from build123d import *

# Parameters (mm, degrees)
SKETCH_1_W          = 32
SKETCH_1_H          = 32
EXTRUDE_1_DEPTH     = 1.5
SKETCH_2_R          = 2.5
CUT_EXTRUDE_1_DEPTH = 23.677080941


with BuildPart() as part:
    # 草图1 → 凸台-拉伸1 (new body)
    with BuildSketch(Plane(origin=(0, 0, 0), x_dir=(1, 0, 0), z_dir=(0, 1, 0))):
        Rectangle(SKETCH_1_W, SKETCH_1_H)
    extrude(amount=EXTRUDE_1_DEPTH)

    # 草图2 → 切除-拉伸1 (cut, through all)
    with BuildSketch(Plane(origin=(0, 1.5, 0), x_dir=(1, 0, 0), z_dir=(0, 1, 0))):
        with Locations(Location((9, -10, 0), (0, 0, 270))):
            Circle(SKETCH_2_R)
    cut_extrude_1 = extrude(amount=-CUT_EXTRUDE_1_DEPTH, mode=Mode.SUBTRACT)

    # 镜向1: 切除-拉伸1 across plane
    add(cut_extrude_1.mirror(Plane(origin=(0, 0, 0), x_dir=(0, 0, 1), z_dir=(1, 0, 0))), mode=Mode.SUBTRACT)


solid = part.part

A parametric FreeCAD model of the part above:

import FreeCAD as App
import Part
import Sketcher


def add_polygon(sketch, points):
    """Adds a closed chain of lines whose ends are joined by coincident constraints."""
    first, n = sketch.GeometryCount, len(points)
    for a, b in zip(points, points[1:] + points[:1]):
        sketch.addGeometry(Part.LineSegment(App.Vector(*a, 0), App.Vector(*b, 0)), False)
    for i in range(n):
        sketch.addConstraint(Sketcher.Constraint("Coincident", first + i, 2, first + (i + 1) % n, 1))

doc = App.newDocument("Part")
body = doc.addObject("PartDesign::Body", "Body")

sketch1 = body.newObject("Sketcher::SketchObject", "Sketch")
sketch1.AttachmentSupport = (doc.getObject("XZ_Plane"), [""])
sketch1.MapMode = "FlatFace"
add_polygon(sketch1, [(-16, -16), (-16, 16), (16, 16), (16, -16)])
sketch1.addConstraint([
    Sketcher.Constraint("Vertical", 0),
    Sketcher.Constraint("Horizontal", 1),
    Sketcher.Constraint("Vertical", 2),
    Sketcher.Constraint("Horizontal", 3),
    Sketcher.Constraint("Symmetric", 0, 2, 2, 2, -1, 1),
    Sketcher.Constraint("Equal", 3, 0),
    Sketcher.Constraint("DistanceX", 1, 1, 1, 2, 32.0),
])
pad1 = body.newObject("PartDesign::Pad", "Pad")
pad1.Profile = sketch1
pad1.Length = 1.5
pad1.Reversed = True

sketch2 = body.newObject("Sketcher::SketchObject", "Sketch001")
sketch2.AttachmentSupport = (doc.getObject("XZ_Plane"), [""])
sketch2.MapMode = "FlatFace"
sketch2.AttachmentOffset = App.Placement(App.Vector(0, 0, -1.5), App.Rotation())
sketch2.addGeometry(Part.Circle(App.Vector(9, 10, 0), App.Vector(0, 0, 1), 2.5), False)
sketch2.addConstraint([
    Sketcher.Constraint("Diameter", 0, 5.0),
    Sketcher.Constraint("DistanceX", -1, 1, 0, 3, 9.0),
    Sketcher.Constraint("DistanceY", -1, 1, 0, 3, 10.0),
])
pocket1 = body.newObject("PartDesign::Pocket", "Pocket")
pocket1.Profile = sketch2
pocket1.Type = "ThroughAll"
pocket1.Reversed = True
doc.recompute()

mirrored = body.newObject("PartDesign::Mirrored", "Mirrored")
mirrored.Originals = [pocket1]
mirrored.MirrorPlane = (doc.getObject("YZ_Plane"), [""])
body.Tip = mirrored

doc.recompute()
